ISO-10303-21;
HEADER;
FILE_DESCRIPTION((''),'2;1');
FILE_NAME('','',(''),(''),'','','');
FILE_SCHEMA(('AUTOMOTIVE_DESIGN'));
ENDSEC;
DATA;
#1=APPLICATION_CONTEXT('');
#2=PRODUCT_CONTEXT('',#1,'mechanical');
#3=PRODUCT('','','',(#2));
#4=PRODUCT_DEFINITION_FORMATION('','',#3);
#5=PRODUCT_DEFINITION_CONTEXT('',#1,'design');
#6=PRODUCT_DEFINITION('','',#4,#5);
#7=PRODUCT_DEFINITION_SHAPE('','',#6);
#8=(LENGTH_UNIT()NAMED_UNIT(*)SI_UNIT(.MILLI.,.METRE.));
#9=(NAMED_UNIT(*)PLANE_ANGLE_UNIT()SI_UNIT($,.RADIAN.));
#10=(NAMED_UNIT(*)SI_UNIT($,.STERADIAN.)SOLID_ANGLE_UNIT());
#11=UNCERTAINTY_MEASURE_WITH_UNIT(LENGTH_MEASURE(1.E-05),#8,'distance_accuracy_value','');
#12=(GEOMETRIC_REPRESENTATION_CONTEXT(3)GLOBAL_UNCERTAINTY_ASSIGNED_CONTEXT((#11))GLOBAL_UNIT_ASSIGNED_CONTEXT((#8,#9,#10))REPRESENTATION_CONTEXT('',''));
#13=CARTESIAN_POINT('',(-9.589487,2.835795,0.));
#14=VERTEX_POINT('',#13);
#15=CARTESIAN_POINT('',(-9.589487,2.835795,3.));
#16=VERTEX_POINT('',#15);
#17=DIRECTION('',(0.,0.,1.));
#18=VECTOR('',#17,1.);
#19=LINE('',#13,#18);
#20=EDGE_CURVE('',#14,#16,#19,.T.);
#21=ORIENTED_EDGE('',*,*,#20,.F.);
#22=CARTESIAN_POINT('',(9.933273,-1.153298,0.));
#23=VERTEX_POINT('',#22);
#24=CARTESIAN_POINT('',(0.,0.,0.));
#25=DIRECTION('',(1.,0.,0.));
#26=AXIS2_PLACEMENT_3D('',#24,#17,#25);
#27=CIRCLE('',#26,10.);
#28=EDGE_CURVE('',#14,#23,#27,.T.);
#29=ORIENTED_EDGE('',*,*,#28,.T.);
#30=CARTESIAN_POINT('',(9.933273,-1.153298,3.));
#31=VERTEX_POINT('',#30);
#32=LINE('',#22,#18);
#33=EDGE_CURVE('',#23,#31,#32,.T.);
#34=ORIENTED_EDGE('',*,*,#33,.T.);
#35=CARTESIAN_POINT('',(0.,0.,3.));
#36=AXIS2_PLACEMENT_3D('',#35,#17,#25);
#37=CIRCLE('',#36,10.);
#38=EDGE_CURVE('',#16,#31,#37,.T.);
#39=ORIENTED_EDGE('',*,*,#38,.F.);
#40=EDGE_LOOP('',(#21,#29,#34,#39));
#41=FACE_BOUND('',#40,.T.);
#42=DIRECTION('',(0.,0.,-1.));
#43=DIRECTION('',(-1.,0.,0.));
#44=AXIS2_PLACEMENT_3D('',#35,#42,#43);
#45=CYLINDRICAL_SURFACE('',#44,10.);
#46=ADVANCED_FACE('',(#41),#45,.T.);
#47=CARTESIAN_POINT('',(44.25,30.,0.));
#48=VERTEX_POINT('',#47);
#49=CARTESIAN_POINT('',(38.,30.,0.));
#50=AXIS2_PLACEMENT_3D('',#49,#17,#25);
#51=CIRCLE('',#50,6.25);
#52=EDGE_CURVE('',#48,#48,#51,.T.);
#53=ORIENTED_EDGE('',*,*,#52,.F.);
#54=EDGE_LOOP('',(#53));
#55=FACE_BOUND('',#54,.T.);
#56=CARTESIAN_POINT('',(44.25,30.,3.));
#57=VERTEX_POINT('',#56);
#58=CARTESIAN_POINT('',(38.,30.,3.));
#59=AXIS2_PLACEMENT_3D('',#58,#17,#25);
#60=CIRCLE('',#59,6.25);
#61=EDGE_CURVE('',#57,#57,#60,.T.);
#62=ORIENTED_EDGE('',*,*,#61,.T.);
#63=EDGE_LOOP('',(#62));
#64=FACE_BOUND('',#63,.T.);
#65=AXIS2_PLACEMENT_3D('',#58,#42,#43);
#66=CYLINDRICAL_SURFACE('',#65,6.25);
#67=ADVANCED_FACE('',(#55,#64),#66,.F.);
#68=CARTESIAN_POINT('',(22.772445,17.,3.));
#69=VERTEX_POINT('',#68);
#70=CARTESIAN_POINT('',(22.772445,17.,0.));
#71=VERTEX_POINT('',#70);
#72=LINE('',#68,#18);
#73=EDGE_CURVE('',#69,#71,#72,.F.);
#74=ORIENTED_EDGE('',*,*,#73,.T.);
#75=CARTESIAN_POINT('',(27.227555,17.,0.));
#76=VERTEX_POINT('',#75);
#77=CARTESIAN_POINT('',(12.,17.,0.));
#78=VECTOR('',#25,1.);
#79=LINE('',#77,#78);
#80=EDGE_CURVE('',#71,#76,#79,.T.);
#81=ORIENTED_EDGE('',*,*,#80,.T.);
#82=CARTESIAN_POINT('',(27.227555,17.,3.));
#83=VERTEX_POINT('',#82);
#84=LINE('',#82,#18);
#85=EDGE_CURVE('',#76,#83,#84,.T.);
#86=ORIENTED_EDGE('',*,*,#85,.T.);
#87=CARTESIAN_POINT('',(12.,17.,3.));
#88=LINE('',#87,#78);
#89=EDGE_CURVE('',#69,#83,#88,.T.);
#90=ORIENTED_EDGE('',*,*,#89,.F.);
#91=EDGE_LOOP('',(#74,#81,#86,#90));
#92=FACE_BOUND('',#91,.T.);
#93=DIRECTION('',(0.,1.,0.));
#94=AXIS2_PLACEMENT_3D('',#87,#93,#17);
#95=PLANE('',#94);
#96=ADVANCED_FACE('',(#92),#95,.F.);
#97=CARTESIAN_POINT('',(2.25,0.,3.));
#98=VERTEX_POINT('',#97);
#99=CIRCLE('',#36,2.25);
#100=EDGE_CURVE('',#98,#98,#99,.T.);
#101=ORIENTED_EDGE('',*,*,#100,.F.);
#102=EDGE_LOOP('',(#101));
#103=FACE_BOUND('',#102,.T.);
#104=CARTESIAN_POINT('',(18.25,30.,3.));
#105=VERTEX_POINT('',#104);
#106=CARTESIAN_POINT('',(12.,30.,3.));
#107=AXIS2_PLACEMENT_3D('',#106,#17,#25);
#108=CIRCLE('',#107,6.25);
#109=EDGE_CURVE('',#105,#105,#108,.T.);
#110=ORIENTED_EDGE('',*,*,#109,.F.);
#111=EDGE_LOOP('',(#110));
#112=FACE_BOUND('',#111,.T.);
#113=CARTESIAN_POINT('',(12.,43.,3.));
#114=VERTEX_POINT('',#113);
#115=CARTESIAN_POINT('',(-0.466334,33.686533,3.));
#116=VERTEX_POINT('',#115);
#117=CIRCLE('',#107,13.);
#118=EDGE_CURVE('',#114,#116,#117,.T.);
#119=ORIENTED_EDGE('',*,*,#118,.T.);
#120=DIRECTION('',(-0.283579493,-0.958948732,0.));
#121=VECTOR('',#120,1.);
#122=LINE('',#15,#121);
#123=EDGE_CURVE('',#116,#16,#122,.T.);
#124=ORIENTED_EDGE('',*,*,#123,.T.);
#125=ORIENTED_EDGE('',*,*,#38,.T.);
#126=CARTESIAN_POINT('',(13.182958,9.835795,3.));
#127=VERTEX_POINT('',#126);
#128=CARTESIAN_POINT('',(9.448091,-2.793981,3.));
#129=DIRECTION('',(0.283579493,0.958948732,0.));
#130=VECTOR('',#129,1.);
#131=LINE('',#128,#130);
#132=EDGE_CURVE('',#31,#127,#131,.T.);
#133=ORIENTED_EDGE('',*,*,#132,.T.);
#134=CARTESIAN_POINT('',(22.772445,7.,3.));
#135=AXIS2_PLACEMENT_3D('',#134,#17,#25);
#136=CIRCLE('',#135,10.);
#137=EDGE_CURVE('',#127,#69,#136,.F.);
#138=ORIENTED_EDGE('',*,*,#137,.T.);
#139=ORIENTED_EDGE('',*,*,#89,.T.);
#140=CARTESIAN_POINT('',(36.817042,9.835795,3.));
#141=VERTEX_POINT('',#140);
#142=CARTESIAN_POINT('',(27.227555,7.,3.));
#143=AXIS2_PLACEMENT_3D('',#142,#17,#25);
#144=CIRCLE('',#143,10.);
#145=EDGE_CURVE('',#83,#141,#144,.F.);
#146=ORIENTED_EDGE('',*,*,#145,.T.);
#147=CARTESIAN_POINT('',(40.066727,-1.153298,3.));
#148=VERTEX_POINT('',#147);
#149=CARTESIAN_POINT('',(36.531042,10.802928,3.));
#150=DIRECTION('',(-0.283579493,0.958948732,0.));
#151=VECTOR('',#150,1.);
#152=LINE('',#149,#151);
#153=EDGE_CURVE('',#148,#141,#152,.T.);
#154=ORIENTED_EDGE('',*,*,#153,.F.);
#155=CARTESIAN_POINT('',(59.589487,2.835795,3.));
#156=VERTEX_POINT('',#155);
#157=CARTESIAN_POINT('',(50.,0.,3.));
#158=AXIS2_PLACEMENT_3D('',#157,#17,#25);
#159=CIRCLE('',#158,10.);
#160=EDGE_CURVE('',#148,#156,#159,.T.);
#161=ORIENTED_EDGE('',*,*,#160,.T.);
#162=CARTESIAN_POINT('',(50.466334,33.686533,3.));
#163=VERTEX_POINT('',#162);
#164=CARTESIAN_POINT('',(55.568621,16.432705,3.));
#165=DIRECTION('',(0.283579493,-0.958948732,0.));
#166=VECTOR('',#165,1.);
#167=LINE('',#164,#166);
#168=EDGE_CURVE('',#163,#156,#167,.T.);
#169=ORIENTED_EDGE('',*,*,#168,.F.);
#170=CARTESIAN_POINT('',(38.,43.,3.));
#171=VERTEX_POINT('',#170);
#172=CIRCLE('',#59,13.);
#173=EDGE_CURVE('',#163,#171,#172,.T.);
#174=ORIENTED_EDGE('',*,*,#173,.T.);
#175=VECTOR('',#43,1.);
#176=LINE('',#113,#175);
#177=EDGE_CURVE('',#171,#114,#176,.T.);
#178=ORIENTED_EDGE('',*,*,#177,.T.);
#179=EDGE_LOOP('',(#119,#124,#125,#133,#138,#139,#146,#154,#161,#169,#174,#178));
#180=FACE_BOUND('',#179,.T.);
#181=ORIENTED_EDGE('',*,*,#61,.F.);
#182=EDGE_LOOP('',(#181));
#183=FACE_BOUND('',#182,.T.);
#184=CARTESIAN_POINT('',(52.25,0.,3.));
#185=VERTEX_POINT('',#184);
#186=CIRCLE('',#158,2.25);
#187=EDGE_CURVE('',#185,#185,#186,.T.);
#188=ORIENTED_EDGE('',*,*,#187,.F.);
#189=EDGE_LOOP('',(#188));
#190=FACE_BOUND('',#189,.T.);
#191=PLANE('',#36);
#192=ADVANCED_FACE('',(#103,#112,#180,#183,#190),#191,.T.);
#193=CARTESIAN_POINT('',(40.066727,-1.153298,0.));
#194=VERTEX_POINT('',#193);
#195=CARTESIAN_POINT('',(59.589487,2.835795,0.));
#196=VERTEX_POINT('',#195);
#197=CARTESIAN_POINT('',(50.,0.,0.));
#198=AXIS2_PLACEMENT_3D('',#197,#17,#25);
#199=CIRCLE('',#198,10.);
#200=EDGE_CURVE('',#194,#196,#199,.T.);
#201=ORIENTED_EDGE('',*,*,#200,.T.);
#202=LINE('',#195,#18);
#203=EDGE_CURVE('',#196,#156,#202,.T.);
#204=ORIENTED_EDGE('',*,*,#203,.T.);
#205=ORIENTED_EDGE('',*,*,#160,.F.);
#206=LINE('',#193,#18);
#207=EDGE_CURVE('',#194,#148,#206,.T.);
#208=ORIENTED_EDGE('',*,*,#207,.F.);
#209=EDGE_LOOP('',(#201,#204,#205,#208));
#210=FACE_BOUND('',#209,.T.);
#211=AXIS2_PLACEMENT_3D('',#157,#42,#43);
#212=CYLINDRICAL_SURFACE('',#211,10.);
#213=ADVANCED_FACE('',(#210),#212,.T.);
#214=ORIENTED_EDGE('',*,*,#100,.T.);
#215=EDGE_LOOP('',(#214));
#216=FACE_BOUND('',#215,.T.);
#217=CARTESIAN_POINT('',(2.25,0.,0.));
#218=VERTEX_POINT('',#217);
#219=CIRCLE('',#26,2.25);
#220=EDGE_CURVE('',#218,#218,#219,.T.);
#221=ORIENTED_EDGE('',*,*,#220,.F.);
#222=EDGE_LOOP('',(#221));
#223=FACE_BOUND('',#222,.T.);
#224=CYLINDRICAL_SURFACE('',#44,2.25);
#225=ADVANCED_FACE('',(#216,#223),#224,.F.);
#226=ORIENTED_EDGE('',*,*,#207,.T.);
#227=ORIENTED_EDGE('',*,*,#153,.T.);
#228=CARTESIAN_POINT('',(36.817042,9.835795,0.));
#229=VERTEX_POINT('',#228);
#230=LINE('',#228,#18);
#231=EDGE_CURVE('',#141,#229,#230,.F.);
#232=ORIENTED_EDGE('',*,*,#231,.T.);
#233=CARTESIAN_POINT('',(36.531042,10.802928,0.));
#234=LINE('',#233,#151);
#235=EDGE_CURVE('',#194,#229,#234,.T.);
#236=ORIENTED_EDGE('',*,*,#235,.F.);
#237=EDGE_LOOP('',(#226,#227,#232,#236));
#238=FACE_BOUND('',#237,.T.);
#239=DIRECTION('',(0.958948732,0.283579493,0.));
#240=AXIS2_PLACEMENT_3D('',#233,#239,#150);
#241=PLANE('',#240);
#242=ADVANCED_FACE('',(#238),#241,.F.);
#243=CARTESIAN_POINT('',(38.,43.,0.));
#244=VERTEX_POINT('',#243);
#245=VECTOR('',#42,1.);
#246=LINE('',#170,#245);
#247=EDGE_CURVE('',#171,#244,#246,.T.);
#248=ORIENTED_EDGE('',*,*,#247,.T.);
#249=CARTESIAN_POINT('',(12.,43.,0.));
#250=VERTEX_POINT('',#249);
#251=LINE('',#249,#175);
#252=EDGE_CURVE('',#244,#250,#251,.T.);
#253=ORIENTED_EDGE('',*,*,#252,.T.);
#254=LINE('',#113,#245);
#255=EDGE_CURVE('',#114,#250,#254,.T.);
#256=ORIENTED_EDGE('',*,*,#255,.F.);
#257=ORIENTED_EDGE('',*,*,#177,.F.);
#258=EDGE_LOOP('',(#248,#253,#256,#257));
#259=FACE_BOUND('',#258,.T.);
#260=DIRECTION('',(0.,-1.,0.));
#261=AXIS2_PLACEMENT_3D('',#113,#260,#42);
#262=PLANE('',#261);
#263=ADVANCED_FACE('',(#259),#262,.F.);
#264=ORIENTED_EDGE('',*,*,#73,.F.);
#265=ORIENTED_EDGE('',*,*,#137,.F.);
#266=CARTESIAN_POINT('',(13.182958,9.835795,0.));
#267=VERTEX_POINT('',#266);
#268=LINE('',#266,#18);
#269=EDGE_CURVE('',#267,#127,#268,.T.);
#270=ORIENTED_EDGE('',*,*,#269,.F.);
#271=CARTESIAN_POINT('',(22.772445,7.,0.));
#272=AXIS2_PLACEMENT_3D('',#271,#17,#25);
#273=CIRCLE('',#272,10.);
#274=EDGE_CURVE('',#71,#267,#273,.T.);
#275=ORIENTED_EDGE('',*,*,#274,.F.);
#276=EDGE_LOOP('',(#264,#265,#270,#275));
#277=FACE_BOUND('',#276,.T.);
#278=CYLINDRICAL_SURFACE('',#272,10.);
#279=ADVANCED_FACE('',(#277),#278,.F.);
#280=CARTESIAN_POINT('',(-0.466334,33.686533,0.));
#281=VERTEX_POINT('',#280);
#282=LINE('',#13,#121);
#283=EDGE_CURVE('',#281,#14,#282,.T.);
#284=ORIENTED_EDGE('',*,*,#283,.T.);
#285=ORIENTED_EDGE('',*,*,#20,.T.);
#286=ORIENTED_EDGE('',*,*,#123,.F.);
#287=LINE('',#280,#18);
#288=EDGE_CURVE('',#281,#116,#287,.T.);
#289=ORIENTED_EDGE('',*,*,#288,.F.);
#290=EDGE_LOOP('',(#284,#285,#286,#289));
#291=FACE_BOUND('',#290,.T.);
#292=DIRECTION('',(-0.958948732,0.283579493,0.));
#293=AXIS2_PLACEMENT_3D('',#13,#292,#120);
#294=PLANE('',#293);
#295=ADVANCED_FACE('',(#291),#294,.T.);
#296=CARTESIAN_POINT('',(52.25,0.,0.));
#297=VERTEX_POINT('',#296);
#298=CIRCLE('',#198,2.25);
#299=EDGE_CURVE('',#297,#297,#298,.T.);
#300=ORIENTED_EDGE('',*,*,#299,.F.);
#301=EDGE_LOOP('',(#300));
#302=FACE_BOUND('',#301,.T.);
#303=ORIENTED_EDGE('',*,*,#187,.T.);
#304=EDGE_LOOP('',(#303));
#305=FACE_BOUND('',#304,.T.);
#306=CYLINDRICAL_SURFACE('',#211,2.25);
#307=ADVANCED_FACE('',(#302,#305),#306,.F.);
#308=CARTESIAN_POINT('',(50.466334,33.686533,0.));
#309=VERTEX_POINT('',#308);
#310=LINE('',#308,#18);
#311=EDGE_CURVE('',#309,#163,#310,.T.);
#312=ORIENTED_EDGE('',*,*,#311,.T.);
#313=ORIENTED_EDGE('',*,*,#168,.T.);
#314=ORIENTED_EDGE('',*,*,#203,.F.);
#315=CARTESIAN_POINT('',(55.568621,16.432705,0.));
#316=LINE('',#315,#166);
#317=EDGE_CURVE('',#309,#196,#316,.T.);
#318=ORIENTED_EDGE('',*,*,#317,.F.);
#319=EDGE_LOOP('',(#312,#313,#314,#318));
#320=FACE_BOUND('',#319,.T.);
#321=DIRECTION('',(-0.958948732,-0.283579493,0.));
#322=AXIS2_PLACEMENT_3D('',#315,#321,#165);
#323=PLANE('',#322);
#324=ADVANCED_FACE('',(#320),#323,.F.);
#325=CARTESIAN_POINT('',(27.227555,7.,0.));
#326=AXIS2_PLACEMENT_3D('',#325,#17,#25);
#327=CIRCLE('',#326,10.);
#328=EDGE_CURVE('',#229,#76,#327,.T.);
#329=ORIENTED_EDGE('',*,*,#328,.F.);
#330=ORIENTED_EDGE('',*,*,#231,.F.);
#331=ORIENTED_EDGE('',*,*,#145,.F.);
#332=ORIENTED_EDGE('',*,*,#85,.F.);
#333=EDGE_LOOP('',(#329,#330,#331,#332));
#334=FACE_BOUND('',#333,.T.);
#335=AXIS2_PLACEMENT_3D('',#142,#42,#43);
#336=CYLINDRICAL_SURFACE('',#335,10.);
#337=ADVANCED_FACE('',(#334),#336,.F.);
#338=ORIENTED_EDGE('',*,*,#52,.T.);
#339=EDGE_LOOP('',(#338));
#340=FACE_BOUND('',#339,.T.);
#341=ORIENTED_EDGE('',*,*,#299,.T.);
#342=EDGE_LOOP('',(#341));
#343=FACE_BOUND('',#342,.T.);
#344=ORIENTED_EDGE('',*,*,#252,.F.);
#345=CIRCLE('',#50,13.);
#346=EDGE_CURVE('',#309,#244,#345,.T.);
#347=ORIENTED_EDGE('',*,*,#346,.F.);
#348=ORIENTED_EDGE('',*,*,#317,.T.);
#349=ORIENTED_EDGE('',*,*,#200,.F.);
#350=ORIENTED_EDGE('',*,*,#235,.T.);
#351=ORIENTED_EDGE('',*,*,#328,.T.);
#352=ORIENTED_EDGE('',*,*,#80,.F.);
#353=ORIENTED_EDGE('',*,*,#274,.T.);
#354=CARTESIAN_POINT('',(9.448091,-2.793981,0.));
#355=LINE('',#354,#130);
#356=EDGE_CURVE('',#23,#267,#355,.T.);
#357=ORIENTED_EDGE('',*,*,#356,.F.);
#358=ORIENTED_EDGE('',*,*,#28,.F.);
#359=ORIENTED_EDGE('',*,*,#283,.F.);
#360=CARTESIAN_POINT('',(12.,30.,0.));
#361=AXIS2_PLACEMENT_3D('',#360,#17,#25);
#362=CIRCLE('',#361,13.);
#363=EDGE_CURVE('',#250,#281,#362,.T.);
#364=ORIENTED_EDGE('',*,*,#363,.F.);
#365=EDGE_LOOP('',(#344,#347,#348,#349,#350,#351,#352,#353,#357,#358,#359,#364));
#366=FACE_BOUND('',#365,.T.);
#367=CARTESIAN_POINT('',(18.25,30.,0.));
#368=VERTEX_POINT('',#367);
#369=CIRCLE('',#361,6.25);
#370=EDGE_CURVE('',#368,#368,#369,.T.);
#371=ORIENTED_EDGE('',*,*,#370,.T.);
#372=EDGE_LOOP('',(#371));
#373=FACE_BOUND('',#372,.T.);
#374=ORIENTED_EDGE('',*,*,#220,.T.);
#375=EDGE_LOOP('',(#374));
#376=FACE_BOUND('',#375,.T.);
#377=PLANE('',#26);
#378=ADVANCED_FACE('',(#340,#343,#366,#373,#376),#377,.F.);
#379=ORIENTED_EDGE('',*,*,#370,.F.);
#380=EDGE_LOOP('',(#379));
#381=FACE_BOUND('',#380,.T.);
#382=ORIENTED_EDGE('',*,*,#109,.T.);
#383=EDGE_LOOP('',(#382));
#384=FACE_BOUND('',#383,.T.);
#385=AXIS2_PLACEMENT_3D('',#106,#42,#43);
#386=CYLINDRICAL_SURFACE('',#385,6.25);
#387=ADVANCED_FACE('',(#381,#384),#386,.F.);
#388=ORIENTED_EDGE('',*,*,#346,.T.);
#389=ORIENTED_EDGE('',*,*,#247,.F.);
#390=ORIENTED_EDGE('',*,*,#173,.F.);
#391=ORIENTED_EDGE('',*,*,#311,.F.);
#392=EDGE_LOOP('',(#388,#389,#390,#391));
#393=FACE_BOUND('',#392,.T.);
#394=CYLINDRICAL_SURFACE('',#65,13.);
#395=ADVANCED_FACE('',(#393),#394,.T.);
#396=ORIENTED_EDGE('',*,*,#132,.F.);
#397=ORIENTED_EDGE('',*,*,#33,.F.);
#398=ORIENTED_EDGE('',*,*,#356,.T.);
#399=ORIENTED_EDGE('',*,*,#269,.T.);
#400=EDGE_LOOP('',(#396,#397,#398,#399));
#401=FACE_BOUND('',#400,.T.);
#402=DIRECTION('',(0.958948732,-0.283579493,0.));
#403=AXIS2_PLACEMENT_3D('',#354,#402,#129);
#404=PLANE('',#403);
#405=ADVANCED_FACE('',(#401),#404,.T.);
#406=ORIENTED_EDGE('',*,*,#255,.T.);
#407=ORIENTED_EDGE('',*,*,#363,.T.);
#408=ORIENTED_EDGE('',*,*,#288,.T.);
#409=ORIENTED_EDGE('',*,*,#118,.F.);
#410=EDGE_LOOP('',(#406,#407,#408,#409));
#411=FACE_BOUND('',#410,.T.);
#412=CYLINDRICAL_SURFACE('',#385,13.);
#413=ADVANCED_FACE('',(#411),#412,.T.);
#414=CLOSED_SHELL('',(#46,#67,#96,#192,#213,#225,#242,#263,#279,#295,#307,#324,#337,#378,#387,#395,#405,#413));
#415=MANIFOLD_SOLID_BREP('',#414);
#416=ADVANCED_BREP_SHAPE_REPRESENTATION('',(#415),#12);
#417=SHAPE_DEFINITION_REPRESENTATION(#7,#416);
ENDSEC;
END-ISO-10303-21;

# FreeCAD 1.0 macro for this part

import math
import FreeCAD as App
import Part
import Sketcher

V = App.Vector
Q = App.Units.Quantity


def edges_at(feature, points):
    """Names of the edges that pass closest to the given points."""
    edges = feature.Shape.Edges
    near = lambda p: min(range(len(edges)), key=lambda i: edges[i].distToShape(Part.Vertex(*p))[0])
    return sorted({f"Edge{near(p) + 1}" for p in points})

doc = App.newDocument("Part")
body = doc.addObject("PartDesign::Body", "Body")

sketch1 = body.newObject("Sketcher::SketchObject", "Sketch")
sketch1.AttachmentSupport = (doc.getObject("XY_Plane"), [""])
sketch1.MapMode = "FlatFace"
sketch1.addGeometry([
    Part.Circle(V(0, 0, 0), V(0, 0, 1), 10),
    Part.Circle(V(0, 0, 0), V(0, 0, 1), 2.2),
], False)
sketch1.addConstraint([
    Sketcher.Constraint("Coincident", 0, 3, -1, 1),
    Sketcher.Constraint("Coincident", 1, 3, -1, 1),
    Sketcher.Constraint("Diameter", 0, Q("20 mm")),
    Sketcher.Constraint("Diameter", 1, Q("4.5 mm")),
])
pad1 = body.newObject("PartDesign::Pad", "Pad")
pad1.Profile = sketch1
pad1.Length = 3
body2 = doc.addObject("PartDesign::Body", "Body001")

sketch2 = body2.newObject("Sketcher::SketchObject", "Sketch001")
sketch2.AttachmentSupport = (doc.getObject("XY_Plane001"), [""])
sketch2.MapMode = "FlatFace"
sketch2.addGeometry([
    Part.Circle(V(50, 0, 0), V(0, 0, 1), 10),
    Part.Circle(V(50, 0, 0), V(0, 0, 1), 2.2),
], False)
sketch2.addConstraint([
    Sketcher.Constraint("Coincident", 1, 3, 0, 3),
    Sketcher.Constraint("PointOnObject", 0, 3, -1),
    Sketcher.Constraint("Diameter", 0, Q("20 mm")),
    Sketcher.Constraint("Diameter", 1, Q("4.5 mm")),
    Sketcher.Constraint("DistanceX", -1, 1, 0, 3, Q("50 mm")),
])
pad2 = body2.newObject("PartDesign::Pad", "Pad001")
pad2.Profile = sketch2
pad2.Length = 3
body3 = doc.addObject("PartDesign::Body", "Body002")

sketch3 = body3.newObject("Sketcher::SketchObject", "Sketch002")
sketch3.AttachmentSupport = (doc.getObject("XY_Plane002"), [""])
sketch3.MapMode = "FlatFace"
sketch3.addGeometry([
    Part.LineSegment(V(38, 43, 0), V(12, 43, 0)),
    Part.ArcOfCircle(Part.Circle(V(12, 30, 0), V(0, 0, 1), 13), math.radians(90), math.radians(270)),
    Part.LineSegment(V(12, 17, 0), V(38, 17, 0)),
    Part.ArcOfCircle(Part.Circle(V(38, 30, 0), V(0, 0, 1), 13), math.radians(-90), math.radians(90)),
    Part.Circle(V(38, 30, 0), V(0, 0, 1), 6),
    Part.Circle(V(12, 30, 0), V(0, 0, 1), 6),
], False)
sketch3.addConstraint([
    Sketcher.Constraint("Tangent", 0, 2, 1, 1),
    Sketcher.Constraint("Tangent", 1, 2, 2, 1),
    Sketcher.Constraint("Tangent", 2, 2, 3, 1),
    Sketcher.Constraint("Tangent", 3, 2, 0, 1),
    Sketcher.Constraint("Horizontal", 0),
    Sketcher.Constraint("Horizontal", 2),
    Sketcher.Constraint("Coincident", 4, 3, 3, 3),
    Sketcher.Constraint("Coincident", 5, 3, 1, 3),
    Sketcher.Constraint("Equal", 4, 5),
    Sketcher.Constraint("Radius", 1, Q("13 mm")),
    Sketcher.Constraint("Diameter", 4, Q("12.5 mm")),
    Sketcher.Constraint("DistanceX", 0, 2, 0, 1, Q("26 mm")),
    Sketcher.Constraint("DistanceX", -1, 1, 1, 3, Q("12 mm")),
    Sketcher.Constraint("DistanceY", -1, 1, 1, 3, Q("30 mm")),
])
pad3 = body3.newObject("PartDesign::Pad", "Pad002")
pad3.Profile = sketch3
pad3.Length = 3
body.AllowCompound = True
doc.recompute()

boolean = body.newObject("PartDesign::Boolean", "Boolean")
boolean.Type = "Fuse"
boolean.addObjects([body2])
doc.recompute()

boolean2 = body.newObject("PartDesign::Boolean", "Boolean001")
boolean2.Type = "Fuse"
boolean2.addObjects([body3])

sketch4 = body.newObject("Sketcher::SketchObject", "Sketch003")
sketch4.AttachmentSupport = (doc.getObject("XY_Plane"), [""])
sketch4.MapMode = "FlatFace"
sketch4.AttachmentOffset = App.Placement(V(0, 0, 3), App.Rotation())
sketch4.addGeometry([
    Part.ArcOfCircle(Part.Circle(V(12, 30, 0), V(0, 0, 1), 13), math.radians(164), math.radians(270)),
    Part.LineSegment(V(-0.5, 33.7, 0), V(-9.6, 2.8, 0)),
    Part.ArcOfCircle(Part.Circle(V(0, 0, 0), V(0, 0, 1), 10), math.radians(-7), math.radians(164)),
    Part.LineSegment(V(9.9, -1.2, 0), V(15.3, 17, 0)),
    Part.LineSegment(V(15.3, 17, 0), V(12, 17, 0)),
    Part.LineSegment(V(38, 17, 0), V(34.7, 17, 0)),
    Part.LineSegment(V(34.7, 17, 0), V(40.1, -1.2, 0)),
    Part.ArcOfCircle(Part.Circle(V(50, 0, 0), V(0, 0, 1), 10), math.radians(16), math.radians(187)),
    Part.LineSegment(V(59.6, 2.8, 0), V(50.5, 33.7, 0)),
    Part.ArcOfCircle(Part.Circle(V(38, 30, 0), V(0, 0, 1), 13), math.radians(-90), math.radians(16)),
], False)
sketch4.addConstraint([
    Sketcher.Constraint("Tangent", 0, 1, 1, 1),
    Sketcher.Constraint("Tangent", 1, 2, 2, 2),
    Sketcher.Constraint("Coincident", 2, 1, 3, 1),
    Sketcher.Constraint("Coincident", 3, 2, 4, 1),
    Sketcher.Constraint("Tangent", 4, 2, 0, 2),
    Sketcher.Constraint("Coincident", 5, 2, 6, 1),
    Sketcher.Constraint("Coincident", 6, 2, 7, 2),
    Sketcher.Constraint("Tangent", 7, 1, 8, 1),
    Sketcher.Constraint("Tangent", 8, 2, 9, 2),
    Sketcher.Constraint("Tangent", 9, 1, 5, 1),
    Sketcher.Constraint("Horizontal", 4),
    Sketcher.Constraint("Horizontal", 5),
    Sketcher.Constraint("Coincident", 2, 3, -1, 1),
    Sketcher.Constraint("Equal", 2, 7),
    Sketcher.Constraint("Equal", 0, 9),
    Sketcher.Constraint("PointOnObject", 7, 3, -1),
    Sketcher.Constraint("Parallel", 1, 3),
    Sketcher.Constraint("Parallel", 6, 8),
    Sketcher.Constraint("Horizontal", 0, 3, 9, 3),
    Sketcher.Constraint("Horizontal", 2, 1, 6, 2),
    Sketcher.Constraint("Horizontal", 1, 2, 7, 1),
    Sketcher.Constraint("Radius", 0, Q("13 mm")),
    Sketcher.Constraint("Radius", 2, Q("10 mm")),
    Sketcher.Constraint("DistanceX", -1, 1, 0, 3, Q("12 mm")),
    Sketcher.Constraint("DistanceY", -1, 1, 0, 3, Q("30 mm")),
    Sketcher.Constraint("DistanceX", -1, 1, 7, 3, Q("50 mm")),
    Sketcher.Constraint("DistanceX", 4, 2, 4, 1, Q("3.30155 mm")),
])
pad4 = body.newObject("PartDesign::Pad", "Pad003")
pad4.Profile = sketch4
pad4.Length = 3
pad4.Reversed = True
doc.recompute()

fillet = body.newObject("PartDesign::Fillet", "Fillet")
fillet.Base = (pad4, edges_at(pad4, [(15.302, 17, 1.5), (34.698, 17, 1.5)]))
fillet.Radius = 10

doc.recompute()
